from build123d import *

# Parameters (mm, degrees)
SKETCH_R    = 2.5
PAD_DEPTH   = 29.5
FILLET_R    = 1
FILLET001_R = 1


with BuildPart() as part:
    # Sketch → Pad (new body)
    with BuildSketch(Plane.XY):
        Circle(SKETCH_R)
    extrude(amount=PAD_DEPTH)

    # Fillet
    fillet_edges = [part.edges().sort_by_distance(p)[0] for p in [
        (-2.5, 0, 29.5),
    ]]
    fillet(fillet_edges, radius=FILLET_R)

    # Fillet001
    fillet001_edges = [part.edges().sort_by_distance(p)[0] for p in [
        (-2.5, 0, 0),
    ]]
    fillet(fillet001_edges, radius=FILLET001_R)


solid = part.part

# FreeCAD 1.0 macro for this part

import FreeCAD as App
import Part
import Sketcher
from FreeCAD import Vector
Q = App.Units.Quantity


def edges_at(feature, points):
    """Names of the edges that pass closest to the given points."""
    edges = feature.Shape.Edges
    near = lambda p: min(range(len(edges)), key=lambda i: edges[i].distToShape(Part.Vertex(*p))[0])
    return sorted({f"Edge{near(p) + 1}" for p in points})

doc = App.newDocument("Part")
params = doc.addObject("Spreadsheet::Sheet", "Params")
for row, (alias, value) in enumerate([
    ("sketch1_diameter", "5 mm"),
    ("pad1_length", "29.5 mm"),
    ("fillet_radius", "1 mm"),
    ("fillet2_radius", "1 mm"),
], start=1):
    params.set(f"A{row}", alias)
    params.set(f"B{row}", "=" + value)
    params.setAlias(f"B{row}", alias)

body = doc.addObject("PartDesign::Body", "Body")

# Sketch on XY plane
sketch1 = body.newObject("Sketcher::SketchObject", "Sketch")
sketch1.AttachmentSupport = (doc.getObject("XY_Plane"), [""])
sketch1.MapMode = "FlatFace"
sketch1.addGeometry(Part.Circle(Vector(0, 0, 0), Vector(0, 0, 1), 2.5), False)
sketch1.addConstraint(Sketcher.Constraint("Coincident", 0, 3, -1, 1))
sketch1.addConstraint(Sketcher.Constraint("Diameter", 0, Q("5 mm")))
sketch1.setExpression("Constraints[1]", "Params.sketch1_diameter")
pad1 = body.newObject("PartDesign::Pad", "Pad")
pad1.Profile = sketch1
pad1.setExpression("Length", "Params.pad1_length")
doc.recompute()

fillet = body.newObject("PartDesign::Fillet", "Fillet")
fillet.Base = (pad1, edges_at(pad1, [(-2.5, 0, 29.5)]))
fillet.setExpression("Radius", "Params.fillet_radius")
doc.recompute()

fillet2 = body.newObject("PartDesign::Fillet", "Fillet001")
fillet2.Base = (fillet, edges_at(fillet, [(-2.5, 0, 0)]))
fillet2.setExpression("Radius", "Params.fillet2_radius")

doc.recompute()
